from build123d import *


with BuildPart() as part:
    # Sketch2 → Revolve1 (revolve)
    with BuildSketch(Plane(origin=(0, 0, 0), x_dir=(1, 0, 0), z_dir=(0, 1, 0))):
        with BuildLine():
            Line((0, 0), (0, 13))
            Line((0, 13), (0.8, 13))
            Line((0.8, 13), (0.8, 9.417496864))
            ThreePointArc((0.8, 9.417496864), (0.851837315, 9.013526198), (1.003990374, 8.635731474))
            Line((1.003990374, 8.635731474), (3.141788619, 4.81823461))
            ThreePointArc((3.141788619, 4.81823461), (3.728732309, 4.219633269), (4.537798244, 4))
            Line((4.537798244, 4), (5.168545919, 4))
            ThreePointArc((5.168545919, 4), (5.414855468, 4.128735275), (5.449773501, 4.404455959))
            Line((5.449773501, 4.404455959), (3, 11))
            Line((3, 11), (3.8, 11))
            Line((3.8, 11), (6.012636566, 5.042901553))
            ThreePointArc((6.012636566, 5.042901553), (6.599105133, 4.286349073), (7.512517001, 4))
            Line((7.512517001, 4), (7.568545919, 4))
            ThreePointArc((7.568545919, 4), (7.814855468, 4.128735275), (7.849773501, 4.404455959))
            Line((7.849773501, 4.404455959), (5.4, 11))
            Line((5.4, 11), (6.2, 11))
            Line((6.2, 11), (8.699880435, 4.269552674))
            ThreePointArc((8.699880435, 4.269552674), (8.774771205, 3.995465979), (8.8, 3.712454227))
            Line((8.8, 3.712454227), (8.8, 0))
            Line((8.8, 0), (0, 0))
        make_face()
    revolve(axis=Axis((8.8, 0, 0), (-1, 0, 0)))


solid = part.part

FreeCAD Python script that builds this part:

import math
import FreeCAD as App
import Part
import Sketcher
from FreeCAD import Vector

doc = App.newDocument("Part")
params = doc.addObject("Spreadsheet::Sheet", "Params")
for row, (alias, value) in enumerate([
    ("sketch1_radius", "1.6 mm"),
    ("sketch1_radius2", "0.3 mm"),
    ("sketch1_height", "13 mm"),
    ("sketch1_width", "8.8 mm"),
    ("sketch1_width2", "0.8 mm"),
    ("revolution_angle", "360 deg"),
], start=1):
    params.set(f"A{row}", alias)
    params.set(f"B{row}", "=" + value)
    params.setAlias(f"B{row}", alias)

body = doc.addObject("PartDesign::Body", "Body")

sketch1 = body.newObject("Sketcher::SketchObject", "Sketch")
sketch1.AttachmentSupport = (doc.getObject("XZ_Plane"), [""])
sketch1.MapMode = "FlatFace"
sketch1.addGeometry([
    Part.LineSegment(Vector(0, -13, 0), Vector(0, 0, 0)),
    Part.LineSegment(Vector(0, 0, 0), Vector(8.8, 0, 0)),
    Part.LineSegment(Vector(8.8, 0, 0), Vector(8.8, -3.712454, 0)),
    Part.ArcOfCircle(Part.Circle(Vector(7.2, -3.712454, 0), Vector(0, 0, 1), 1.6), math.radians(-20.376435), math.radians(0)),
    Part.LineSegment(Vector(8.69988, -4.269553, 0), Vector(6.2, -11, 0)),
    Part.LineSegment(Vector(6.2, -11, 0), Vector(5.4, -11, 0)),
    Part.LineSegment(Vector(5.4, -11, 0), Vector(7.849774, -4.404456, 0)),
    Part.ArcOfCircle(Part.Circle(Vector(7.568546, -4.3, 0), Vector(0, 0, 1), 0.3), math.radians(-20.376435), math.radians(90)),
    Part.LineSegment(Vector(7.568546, -4, 0), Vector(7.512517, -4, 0)),
    Part.ArcOfCircle(Part.Circle(Vector(7.512517, -5.6, 0), Vector(0, 0, 1), 1.6), math.radians(90), math.radians(159.623565)),
    Part.LineSegment(Vector(6.012637, -5.042902, 0), Vector(3.8, -11, 0)),
    Part.LineSegment(Vector(3.8, -11, 0), Vector(3, -11, 0)),
    Part.LineSegment(Vector(3, -11, 0), Vector(5.449774, -4.404456, 0)),
    Part.ArcOfCircle(Part.Circle(Vector(5.168546, -4.3, 0), Vector(0, 0, 1), 0.3), math.radians(-20.376435), math.radians(90)),
    Part.LineSegment(Vector(5.168546, -4, 0), Vector(4.537798, -4, 0)),
    Part.ArcOfCircle(Part.Circle(Vector(4.537798, -5.6, 0), Vector(0, 0, 1), 1.6), math.radians(90), math.radians(150.751174)),
    Part.LineSegment(Vector(3.141789, -4.818235, 0), Vector(1.00399, -8.635731, 0)),
    Part.ArcOfCircle(Part.Circle(Vector(2.4, -9.417497, 0), Vector(0, 0, 1), 1.6), math.radians(150.751174), math.radians(180)),
    Part.LineSegment(Vector(0.8, -9.417497, 0), Vector(0.8, -13, 0)),
    Part.LineSegment(Vector(0.8, -13, 0), Vector(0, -13, 0)),
], False)
sketch1.addConstraint([
    Sketcher.Constraint("Coincident", 0, 2, 1, 1),
    Sketcher.Constraint("Coincident", 1, 2, 2, 1),
    Sketcher.Constraint("Tangent", 2, 2, 3, 2),
    Sketcher.Constraint("Tangent", 3, 1, 4, 1),
    Sketcher.Constraint("Coincident", 4, 2, 5, 1),
    Sketcher.Constraint("Coincident", 5, 2, 6, 1),
    Sketcher.Constraint("Tangent", 6, 2, 7, 1),
    Sketcher.Constraint("Tangent", 7, 2, 8, 1),
    Sketcher.Constraint("Tangent", 8, 2, 9, 1),
    Sketcher.Constraint("Tangent", 9, 2, 10, 1),
    Sketcher.Constraint("Coincident", 10, 2, 11, 1),
    Sketcher.Constraint("Coincident", 11, 2, 12, 1),
    Sketcher.Constraint("Tangent", 12, 2, 13, 1),
    Sketcher.Constraint("Tangent", 13, 2, 14, 1),
    Sketcher.Constraint("Tangent", 14, 2, 15, 1),
    Sketcher.Constraint("Tangent", 15, 2, 16, 1),
    Sketcher.Constraint("Tangent", 16, 2, 17, 1),
    Sketcher.Constraint("Tangent", 17, 2, 18, 1),
    Sketcher.Constraint("Coincident", 18, 2, 19, 1),
    Sketcher.Constraint("Coincident", 19, 2, 0, 1),
    Sketcher.Constraint("Vertical", 0),
    Sketcher.Constraint("Horizontal", 1),
    Sketcher.Constraint("Vertical", 2),
    Sketcher.Constraint("Horizontal", 5),
    Sketcher.Constraint("Horizontal", 8),
    Sketcher.Constraint("Horizontal", 11),
    Sketcher.Constraint("Horizontal", 14),
    Sketcher.Constraint("Vertical", 18),
    Sketcher.Constraint("Horizontal", 19),
    Sketcher.Constraint("Coincident", 0, 2, -1, 1),
    Sketcher.Constraint("Equal", 3, 9),
    Sketcher.Constraint("Equal", 7, 13),
    Sketcher.Constraint("Equal", 9, 15),
    Sketcher.Constraint("Equal", 15, 17),
    Sketcher.Constraint("Parallel", 4, 6),
    Sketcher.Constraint("Parallel", 6, 10),
    Sketcher.Constraint("Parallel", 10, 12),
    Sketcher.Constraint("Horizontal", 7, 3, 13, 3),
    Sketcher.Constraint("Horizontal", 5, 2, 10, 2),
    Sketcher.Constraint("Equal", 5, 11),
    Sketcher.Constraint("Equal", 11, 19),
    Sketcher.Constraint("Radius", 3, 1.6),
    Sketcher.Constraint("Radius", 7, 0.3),
    Sketcher.Constraint("DistanceY", 0, 1, 0, 2, 13.0),
    Sketcher.Constraint("DistanceX", 1, 1, 1, 2, 8.8),
    Sketcher.Constraint("DistanceX", 5, 2, 5, 1, 0.8),
    Sketcher.Constraint("DistanceY", 4, 2, -1, 1, 11.0),
    Sketcher.Constraint("DistanceY", 7, 2, -1, 1, 4.0),
    Sketcher.Constraint("DistanceX", -1, 1, 11, 2, 3.0),
    Sketcher.Constraint("DistanceX", 17, 3, 5, 2, 3.0),
    Sketcher.Constraint("DistanceY", 6, 2, 3, 3, 0.692002),
    Sketcher.Constraint("DistanceX", -1, 1, 15, 3, 4.537798),
    Sketcher.Constraint("DistanceY", 18, 2, 18, 1, 3.582503),
])
sketch1.setExpression("Constraints[41]", "Params.sketch1_radius")
sketch1.setExpression("Constraints[42]", "Params.sketch1_radius2")
sketch1.setExpression("Constraints[43]", "Params.sketch1_height")
sketch1.setExpression("Constraints[44]", "Params.sketch1_width")
sketch1.setExpression("Constraints[45]", "Params.sketch1_width2")
revolution = body.newObject("PartDesign::Revolution", "Revolution")
revolution.Profile = sketch1
revolution.ReferenceAxis = (sketch1, ["H_Axis"])
revolution.setExpression("Angle", "Params.revolution_angle")

doc.recompute()
